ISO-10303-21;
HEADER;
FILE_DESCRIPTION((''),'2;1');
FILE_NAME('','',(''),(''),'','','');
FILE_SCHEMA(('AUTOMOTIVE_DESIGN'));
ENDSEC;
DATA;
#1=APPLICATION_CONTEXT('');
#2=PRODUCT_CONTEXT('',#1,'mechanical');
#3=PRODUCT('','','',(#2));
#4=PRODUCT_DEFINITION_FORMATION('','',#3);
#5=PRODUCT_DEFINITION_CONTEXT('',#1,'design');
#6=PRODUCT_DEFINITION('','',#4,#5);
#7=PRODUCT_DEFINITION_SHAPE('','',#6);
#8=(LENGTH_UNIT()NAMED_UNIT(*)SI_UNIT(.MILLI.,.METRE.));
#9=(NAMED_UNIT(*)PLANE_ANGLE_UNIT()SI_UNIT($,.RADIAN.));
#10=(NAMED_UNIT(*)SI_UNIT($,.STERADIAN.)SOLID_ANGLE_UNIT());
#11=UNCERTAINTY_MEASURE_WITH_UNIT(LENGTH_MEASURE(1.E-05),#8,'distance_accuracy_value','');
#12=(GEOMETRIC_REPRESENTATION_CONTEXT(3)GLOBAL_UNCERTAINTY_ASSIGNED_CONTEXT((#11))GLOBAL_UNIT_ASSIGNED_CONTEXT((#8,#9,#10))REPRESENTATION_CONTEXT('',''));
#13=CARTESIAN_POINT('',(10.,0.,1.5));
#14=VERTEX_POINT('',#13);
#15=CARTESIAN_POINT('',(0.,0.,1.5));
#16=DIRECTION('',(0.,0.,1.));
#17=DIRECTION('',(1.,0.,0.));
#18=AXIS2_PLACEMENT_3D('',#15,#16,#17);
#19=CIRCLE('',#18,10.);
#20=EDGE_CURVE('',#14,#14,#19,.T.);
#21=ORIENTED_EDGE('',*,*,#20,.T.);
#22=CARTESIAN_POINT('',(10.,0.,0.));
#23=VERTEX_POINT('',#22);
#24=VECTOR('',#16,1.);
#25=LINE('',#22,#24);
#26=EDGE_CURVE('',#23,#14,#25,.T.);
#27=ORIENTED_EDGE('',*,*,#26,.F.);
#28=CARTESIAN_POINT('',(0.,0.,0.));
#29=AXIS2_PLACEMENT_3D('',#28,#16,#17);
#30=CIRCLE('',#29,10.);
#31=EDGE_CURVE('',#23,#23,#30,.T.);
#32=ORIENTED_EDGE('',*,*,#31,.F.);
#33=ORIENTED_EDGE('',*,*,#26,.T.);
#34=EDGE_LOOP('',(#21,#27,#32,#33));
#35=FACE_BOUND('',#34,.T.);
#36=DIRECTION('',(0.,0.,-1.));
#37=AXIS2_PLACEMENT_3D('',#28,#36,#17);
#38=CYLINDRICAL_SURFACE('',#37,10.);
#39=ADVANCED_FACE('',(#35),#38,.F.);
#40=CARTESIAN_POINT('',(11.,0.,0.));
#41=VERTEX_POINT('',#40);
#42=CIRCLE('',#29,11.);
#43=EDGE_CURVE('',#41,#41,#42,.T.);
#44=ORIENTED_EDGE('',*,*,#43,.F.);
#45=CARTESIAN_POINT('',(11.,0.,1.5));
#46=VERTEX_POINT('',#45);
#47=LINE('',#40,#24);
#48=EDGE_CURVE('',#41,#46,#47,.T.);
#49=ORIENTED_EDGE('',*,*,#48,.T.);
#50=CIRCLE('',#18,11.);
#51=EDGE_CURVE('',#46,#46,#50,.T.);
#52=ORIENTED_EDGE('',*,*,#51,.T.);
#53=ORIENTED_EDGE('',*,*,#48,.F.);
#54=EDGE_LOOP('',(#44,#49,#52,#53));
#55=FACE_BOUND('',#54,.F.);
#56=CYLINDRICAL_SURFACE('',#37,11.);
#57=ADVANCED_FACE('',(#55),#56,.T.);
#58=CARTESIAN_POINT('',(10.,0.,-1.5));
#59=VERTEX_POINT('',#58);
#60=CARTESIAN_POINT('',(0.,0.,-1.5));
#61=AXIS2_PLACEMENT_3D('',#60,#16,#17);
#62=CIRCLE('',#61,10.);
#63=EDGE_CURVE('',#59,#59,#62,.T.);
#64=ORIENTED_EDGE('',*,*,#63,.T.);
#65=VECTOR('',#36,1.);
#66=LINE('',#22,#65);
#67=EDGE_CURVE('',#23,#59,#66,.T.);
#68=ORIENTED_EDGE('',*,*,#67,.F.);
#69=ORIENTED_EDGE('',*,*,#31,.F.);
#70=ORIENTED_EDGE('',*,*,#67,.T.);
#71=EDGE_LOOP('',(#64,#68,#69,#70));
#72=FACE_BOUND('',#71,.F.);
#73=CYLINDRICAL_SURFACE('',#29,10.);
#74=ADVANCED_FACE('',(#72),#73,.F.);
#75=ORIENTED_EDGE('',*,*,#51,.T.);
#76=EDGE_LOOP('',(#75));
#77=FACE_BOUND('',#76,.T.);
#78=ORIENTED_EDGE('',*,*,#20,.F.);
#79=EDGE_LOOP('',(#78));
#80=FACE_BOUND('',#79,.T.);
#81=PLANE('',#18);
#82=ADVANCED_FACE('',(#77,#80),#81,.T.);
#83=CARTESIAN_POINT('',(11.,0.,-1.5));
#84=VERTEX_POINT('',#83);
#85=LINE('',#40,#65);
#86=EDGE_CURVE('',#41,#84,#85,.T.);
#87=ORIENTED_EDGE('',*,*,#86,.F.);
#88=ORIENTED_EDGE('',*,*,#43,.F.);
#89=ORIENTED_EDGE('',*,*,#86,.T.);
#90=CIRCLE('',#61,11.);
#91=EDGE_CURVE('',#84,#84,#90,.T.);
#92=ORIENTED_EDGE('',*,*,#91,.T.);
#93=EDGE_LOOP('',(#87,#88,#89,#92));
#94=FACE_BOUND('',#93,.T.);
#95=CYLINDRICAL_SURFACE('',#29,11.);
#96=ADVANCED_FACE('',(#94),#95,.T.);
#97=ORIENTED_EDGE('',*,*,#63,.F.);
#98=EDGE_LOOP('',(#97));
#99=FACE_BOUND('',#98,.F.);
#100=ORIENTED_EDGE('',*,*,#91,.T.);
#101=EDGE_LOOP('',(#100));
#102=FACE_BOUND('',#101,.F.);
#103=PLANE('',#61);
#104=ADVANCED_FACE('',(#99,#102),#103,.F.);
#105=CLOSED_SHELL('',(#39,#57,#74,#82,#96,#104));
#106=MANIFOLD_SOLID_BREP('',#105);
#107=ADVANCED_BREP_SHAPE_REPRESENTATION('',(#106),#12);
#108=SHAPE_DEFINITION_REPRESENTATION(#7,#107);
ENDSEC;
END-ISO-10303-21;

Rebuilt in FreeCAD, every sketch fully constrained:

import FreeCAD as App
import Part
import Sketcher
from FreeCAD import Vector

doc = App.newDocument("Part")
body = doc.addObject("PartDesign::Body", "Body")

# Sketch on XY plane
sketch1 = body.newObject("Sketcher::SketchObject", "Sketch")
sketch1.AttachmentSupport = (doc.getObject("XY_Plane"), [""])
sketch1.MapMode = "FlatFace"
sketch1.addGeometry(Part.Circle(Vector(0, 0, 0), Vector(0, 0, 1), 11), False)
sketch1.addGeometry(Part.Circle(Vector(0, 0, 0), Vector(0, 0, 1), 10), False)
sketch1.addConstraint(Sketcher.Constraint("Coincident", 0, 3, -1, 1))
sketch1.addConstraint(Sketcher.Constraint("Coincident", 1, 3, -1, 1))
sketch1.addConstraint(Sketcher.Constraint("Diameter", 0, 22.0))
sketch1.addConstraint(Sketcher.Constraint("Diameter", 1, 20.0))
pad1 = body.newObject("PartDesign::Pad", "Pad")
pad1.Profile = sketch1
pad1.Length = 3
pad1.Midplane = True

doc.recompute()
